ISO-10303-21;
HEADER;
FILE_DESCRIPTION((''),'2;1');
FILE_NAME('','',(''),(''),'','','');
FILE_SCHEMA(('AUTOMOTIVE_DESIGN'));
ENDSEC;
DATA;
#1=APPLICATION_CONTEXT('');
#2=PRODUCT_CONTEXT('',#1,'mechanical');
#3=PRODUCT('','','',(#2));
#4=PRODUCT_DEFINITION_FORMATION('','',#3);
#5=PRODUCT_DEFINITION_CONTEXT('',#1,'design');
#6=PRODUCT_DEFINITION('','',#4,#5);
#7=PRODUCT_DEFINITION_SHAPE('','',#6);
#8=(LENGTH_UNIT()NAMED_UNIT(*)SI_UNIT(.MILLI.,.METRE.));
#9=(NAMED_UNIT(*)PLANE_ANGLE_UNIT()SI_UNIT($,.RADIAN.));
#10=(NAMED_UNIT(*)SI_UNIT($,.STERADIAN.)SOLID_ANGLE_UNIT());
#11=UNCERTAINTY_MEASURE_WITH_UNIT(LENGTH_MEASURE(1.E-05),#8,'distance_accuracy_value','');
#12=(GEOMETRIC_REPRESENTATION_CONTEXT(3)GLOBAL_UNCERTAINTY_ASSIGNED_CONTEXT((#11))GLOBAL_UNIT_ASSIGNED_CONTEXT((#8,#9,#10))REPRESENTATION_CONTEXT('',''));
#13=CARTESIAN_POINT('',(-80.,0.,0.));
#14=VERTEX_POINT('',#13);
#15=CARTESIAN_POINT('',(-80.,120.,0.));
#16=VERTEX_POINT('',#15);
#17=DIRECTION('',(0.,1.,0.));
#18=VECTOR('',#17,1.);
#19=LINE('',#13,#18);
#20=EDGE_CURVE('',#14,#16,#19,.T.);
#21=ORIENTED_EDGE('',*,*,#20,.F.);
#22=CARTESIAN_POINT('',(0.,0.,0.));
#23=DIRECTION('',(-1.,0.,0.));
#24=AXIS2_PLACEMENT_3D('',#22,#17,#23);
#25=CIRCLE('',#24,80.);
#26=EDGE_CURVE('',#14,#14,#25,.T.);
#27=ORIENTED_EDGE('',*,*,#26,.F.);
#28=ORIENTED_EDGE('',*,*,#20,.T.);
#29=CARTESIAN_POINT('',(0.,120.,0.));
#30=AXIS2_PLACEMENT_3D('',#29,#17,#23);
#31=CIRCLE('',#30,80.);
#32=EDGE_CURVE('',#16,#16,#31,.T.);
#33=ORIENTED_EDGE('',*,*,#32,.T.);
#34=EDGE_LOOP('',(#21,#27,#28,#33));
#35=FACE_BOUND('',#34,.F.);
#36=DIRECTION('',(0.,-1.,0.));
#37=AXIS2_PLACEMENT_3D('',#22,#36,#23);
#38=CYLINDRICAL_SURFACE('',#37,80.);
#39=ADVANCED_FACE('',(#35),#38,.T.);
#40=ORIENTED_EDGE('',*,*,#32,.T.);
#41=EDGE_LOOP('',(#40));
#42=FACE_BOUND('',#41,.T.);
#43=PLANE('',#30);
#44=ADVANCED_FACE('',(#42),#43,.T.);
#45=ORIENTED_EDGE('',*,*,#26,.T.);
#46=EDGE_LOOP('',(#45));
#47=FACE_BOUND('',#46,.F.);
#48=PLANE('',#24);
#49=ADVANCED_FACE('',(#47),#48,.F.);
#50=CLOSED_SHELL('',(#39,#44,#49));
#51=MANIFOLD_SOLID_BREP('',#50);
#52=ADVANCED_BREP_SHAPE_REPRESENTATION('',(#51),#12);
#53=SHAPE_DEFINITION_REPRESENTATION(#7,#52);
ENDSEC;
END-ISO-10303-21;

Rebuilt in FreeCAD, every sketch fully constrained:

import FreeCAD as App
import Part
import Sketcher
from FreeCAD import Vector

doc = App.newDocument("Part")
body = doc.addObject("PartDesign::Body", "Body")

sketch1 = body.newObject("Sketcher::SketchObject", "Sketch")
sketch1.AttachmentSupport = (doc.getObject("XZ_Plane"), [""])
sketch1.MapMode = "FlatFace"
sketch1.addGeometry(Part.Circle(Vector(0, 0, 0), Vector(0, 0, 1), 80), False)
sketch1.addConstraint(Sketcher.Constraint("Coincident", 0, 3, -1, 1))
sketch1.addConstraint(Sketcher.Constraint("Diameter", 0, 160.0))
pad1 = body.newObject("PartDesign::Pad", "Pad")
pad1.Profile = sketch1
pad1.Length = 120
pad1.Reversed = True

doc.recompute()
